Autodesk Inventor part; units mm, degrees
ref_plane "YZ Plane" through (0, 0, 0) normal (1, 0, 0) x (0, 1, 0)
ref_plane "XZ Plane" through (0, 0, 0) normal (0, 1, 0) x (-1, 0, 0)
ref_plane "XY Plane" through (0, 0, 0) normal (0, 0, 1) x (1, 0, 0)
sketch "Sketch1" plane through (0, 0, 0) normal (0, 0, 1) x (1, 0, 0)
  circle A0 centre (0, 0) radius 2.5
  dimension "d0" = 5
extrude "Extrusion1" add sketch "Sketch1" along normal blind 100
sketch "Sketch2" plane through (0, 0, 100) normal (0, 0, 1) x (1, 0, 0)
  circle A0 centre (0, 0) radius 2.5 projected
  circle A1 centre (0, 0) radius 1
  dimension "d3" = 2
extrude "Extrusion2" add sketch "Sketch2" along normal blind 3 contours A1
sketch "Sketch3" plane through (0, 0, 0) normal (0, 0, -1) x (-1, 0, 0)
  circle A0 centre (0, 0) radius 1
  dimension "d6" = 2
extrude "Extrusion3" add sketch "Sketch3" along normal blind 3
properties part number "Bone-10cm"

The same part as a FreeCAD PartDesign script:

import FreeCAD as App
import Part
import Sketcher
from FreeCAD import Vector

doc = App.newDocument("Part")
body = doc.addObject("PartDesign::Body", "Body")

sketch1 = body.newObject("Sketcher::SketchObject", "Sketch")
sketch1.AttachmentSupport = (doc.getObject("XY_Plane"), [""])
sketch1.MapMode = "FlatFace"
sketch1.addGeometry(Part.Circle(Vector(0, 0, 0), Vector(0, 0, 1), 2.5), False)
sketch1.addConstraint([
    Sketcher.Constraint("Coincident", 0, 3, -1, 1),
    Sketcher.Constraint("Diameter", 0, 5.0),
])
pad1 = body.newObject("PartDesign::Pad", "Pad")
pad1.Profile = sketch1
pad1.Length = 100

sketch2 = body.newObject("Sketcher::SketchObject", "Sketch001")
sketch2.AttachmentSupport = (doc.getObject("XY_Plane"), [""])
sketch2.MapMode = "FlatFace"
sketch2.AttachmentOffset = App.Placement(Vector(0, 0, 100), App.Rotation())
sketch2.addGeometry(Part.Circle(Vector(0, 0, 0), Vector(0, 0, 1), 1), False)
sketch2.addConstraint([
    Sketcher.Constraint("Coincident", 0, 3, -1, 1),
    Sketcher.Constraint("Diameter", 0, 2.0),
])
pad2 = body.newObject("PartDesign::Pad", "Pad001")
pad2.Profile = sketch2
pad2.Length = 3

sketch3 = body.newObject("Sketcher::SketchObject", "Sketch002")
sketch3.AttachmentSupport = (doc.getObject("XY_Plane"), [""])
sketch3.MapMode = "FlatFace"
sketch3.addGeometry(Part.Circle(Vector(0, 0, 0), Vector(0, 0, 1), 1), False)
sketch3.addConstraint([
    Sketcher.Constraint("Coincident", 0, 3, -1, 1),
    Sketcher.Constraint("Diameter", 0, 2.0),
])
pad3 = body.newObject("PartDesign::Pad", "Pad002")
pad3.Profile = sketch3
pad3.Length = 3
pad3.Reversed = True

doc.recompute()
